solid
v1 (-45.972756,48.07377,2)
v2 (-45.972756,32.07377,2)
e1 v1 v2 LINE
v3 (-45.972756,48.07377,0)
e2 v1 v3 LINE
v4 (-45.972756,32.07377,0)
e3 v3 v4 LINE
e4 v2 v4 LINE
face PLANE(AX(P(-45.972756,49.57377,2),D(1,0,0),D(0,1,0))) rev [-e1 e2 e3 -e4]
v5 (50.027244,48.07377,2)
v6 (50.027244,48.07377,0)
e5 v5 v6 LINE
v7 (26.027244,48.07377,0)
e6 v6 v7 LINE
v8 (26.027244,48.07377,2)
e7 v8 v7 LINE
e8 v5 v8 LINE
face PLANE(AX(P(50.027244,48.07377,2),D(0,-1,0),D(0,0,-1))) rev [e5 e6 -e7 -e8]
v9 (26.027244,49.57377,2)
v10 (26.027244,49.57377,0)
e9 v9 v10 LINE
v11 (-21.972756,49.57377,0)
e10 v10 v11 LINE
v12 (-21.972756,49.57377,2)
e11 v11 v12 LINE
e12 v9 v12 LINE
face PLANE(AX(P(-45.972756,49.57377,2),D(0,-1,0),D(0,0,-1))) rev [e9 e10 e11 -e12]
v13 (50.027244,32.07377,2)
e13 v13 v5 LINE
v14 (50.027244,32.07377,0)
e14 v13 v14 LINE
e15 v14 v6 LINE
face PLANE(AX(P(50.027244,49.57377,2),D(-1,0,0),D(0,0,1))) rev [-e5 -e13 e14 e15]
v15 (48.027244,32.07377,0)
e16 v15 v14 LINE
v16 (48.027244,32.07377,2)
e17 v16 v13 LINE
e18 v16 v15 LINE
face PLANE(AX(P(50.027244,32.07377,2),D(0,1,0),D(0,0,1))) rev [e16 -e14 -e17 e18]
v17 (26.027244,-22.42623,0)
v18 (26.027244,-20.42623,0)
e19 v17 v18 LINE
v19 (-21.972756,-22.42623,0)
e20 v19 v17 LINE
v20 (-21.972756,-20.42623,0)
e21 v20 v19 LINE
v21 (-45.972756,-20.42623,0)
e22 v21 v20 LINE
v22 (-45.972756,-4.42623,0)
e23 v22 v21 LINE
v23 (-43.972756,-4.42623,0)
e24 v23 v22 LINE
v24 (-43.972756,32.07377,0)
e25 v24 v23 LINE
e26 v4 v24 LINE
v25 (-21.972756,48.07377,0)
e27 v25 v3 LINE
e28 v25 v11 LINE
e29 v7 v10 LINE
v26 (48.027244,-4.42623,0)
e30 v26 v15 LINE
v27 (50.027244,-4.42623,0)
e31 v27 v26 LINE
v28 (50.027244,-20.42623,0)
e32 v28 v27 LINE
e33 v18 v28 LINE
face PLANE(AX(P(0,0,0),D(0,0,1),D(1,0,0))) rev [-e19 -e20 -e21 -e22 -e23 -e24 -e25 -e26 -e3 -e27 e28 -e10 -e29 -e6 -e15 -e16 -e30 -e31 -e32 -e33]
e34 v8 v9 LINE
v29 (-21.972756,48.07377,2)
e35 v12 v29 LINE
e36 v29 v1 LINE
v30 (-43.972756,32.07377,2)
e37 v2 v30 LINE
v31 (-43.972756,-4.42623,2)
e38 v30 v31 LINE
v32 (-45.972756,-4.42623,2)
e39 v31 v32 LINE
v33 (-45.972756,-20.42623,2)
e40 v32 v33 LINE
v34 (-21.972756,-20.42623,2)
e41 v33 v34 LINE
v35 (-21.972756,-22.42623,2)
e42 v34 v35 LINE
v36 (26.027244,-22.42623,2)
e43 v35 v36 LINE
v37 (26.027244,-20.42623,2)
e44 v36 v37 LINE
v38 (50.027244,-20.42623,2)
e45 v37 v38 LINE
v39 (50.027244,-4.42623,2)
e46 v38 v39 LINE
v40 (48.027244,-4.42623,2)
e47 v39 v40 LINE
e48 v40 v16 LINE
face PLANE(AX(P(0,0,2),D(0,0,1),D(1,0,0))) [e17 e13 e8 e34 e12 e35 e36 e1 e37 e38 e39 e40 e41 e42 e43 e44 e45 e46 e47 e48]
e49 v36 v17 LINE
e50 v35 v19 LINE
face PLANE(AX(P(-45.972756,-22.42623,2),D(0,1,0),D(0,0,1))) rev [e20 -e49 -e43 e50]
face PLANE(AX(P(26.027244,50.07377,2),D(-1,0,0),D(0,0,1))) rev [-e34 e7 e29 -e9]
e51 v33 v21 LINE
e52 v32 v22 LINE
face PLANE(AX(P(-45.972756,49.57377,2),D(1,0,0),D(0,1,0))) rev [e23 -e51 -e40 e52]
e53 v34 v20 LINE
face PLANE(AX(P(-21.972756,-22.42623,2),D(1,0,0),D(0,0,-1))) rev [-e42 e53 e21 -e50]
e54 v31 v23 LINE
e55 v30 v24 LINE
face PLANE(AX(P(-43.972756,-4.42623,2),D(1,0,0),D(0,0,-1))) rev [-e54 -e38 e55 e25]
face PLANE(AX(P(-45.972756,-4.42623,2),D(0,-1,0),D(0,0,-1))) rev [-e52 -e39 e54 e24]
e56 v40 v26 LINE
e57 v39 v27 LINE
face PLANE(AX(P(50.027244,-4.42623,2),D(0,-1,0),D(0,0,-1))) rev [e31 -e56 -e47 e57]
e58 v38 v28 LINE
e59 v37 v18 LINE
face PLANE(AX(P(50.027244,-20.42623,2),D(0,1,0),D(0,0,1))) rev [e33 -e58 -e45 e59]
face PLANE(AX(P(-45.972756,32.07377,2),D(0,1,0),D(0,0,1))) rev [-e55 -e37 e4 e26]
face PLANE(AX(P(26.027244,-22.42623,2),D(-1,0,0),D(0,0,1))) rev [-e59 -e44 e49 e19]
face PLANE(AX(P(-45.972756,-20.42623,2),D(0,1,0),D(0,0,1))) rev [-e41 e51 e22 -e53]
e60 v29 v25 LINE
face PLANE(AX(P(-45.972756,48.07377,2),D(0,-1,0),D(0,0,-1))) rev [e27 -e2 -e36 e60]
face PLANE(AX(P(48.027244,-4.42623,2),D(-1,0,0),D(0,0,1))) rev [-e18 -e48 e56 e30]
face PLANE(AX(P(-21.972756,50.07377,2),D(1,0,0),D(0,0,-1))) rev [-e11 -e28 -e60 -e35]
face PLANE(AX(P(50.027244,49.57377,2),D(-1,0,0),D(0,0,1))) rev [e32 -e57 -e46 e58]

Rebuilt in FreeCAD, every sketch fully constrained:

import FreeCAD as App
import Part
import Sketcher
from FreeCAD import Vector
Q = App.Units.Quantity

doc = App.newDocument("Part")
body = doc.addObject("PartDesign::Body", "Body")

sketch1 = doc.addObject("Sketcher::SketchObject", "Sketch")
body.addObject(sketch1)
sketch1.AttachmentSupport = (doc.XY_Plane, [""])
sketch1.MapMode = "FlatFace"
sketch1.addGeometry(Part.LineSegment(Vector(-46, 50, 0), Vector(-46, -22, 0)), False)
sketch1.addGeometry(Part.LineSegment(Vector(-46, -22, 0), Vector(50, -22, 0)), False)
sketch1.addGeometry(Part.LineSegment(Vector(50, -22, 0), Vector(50, 50, 0)), False)
sketch1.addGeometry(Part.LineSegment(Vector(50, 50, 0), Vector(-46, 50, 0)), False)
sketch1.addConstraint(Sketcher.Constraint("Coincident", 0, 2, 1, 1))
sketch1.addConstraint(Sketcher.Constraint("Coincident", 1, 2, 2, 1))
sketch1.addConstraint(Sketcher.Constraint("Coincident", 2, 2, 3, 1))
sketch1.addConstraint(Sketcher.Constraint("Coincident", 3, 2, 0, 1))
sketch1.addConstraint(Sketcher.Constraint("Vertical", 0))
sketch1.addConstraint(Sketcher.Constraint("Horizontal", 1))
sketch1.addConstraint(Sketcher.Constraint("Vertical", 2))
sketch1.addConstraint(Sketcher.Constraint("Horizontal", 3))
sketch1.addConstraint(Sketcher.Constraint("DistanceX", 1, 1, 1, 2, Q("96 mm")))
sketch1.addConstraint(Sketcher.Constraint("DistanceY", 0, 2, 0, 1, Q("72 mm")))
sketch1.addConstraint(Sketcher.Constraint("DistanceY", 0, 2, -1, 1, Q("22.42623 mm")))
sketch1.addConstraint(Sketcher.Constraint("DistanceX", 0, 2, -1, 1, Q("45.972756 mm")))
pad1 = doc.addObject("PartDesign::Pad", "Pad")
body.addObject(pad1)
pad1.Profile = sketch1
pad1.Length = 2

sketch2 = doc.addObject("Sketcher::SketchObject", "Sketch001")
body.addObject(sketch2)
sketch2.AttachmentSupport = (doc.XY_Plane, [""])
sketch2.MapMode = "FlatFace"
sketch2.addGeometry(Part.LineSegment(Vector(-22, -20.4, 0), Vector(-22, -22.4, 0)), False)
sketch2.addGeometry(Part.LineSegment(Vector(-22, -22.4, 0), Vector(-46, -22.4, 0)), False)
sketch2.addGeometry(Part.LineSegment(Vector(-46, -22.4, 0), Vector(-46, -20.4, 0)), False)
sketch2.addGeometry(Part.LineSegment(Vector(-46, -20.4, 0), Vector(-22, -20.4, 0)), False)
sketch2.addGeometry(Part.LineSegment(Vector(50, -20.4, 0), Vector(50, -22.4, 0)), False)
sketch2.addGeometry(Part.LineSegment(Vector(50, -22.4, 0), Vector(26, -22.4, 0)), False)
sketch2.addGeometry(Part.LineSegment(Vector(26, -22.4, 0), Vector(26, -20.4, 0)), False)
sketch2.addGeometry(Part.LineSegment(Vector(26, -20.4, 0), Vector(50, -20.4, 0)), False)
sketch2.addGeometry(Part.LineSegment(Vector(-22, 50.1, 0), Vector(-22, 48.1, 0)), False)
sketch2.addGeometry(Part.LineSegment(Vector(-22, 48.1, 0), Vector(-46, 48.1, 0)), False)
sketch2.addGeometry(Part.LineSegment(Vector(-46, 48.1, 0), Vector(-46, 50.1, 0)), False)
sketch2.addGeometry(Part.LineSegment(Vector(-46, 50.1, 0), Vector(-22, 50.1, 0)), False)
sketch2.addGeometry(Part.LineSegment(Vector(50, 50.1, 0), Vector(50, 48.1, 0)), False)
sketch2.addGeometry(Part.LineSegment(Vector(50, 48.1, 0), Vector(26, 48.1, 0)), False)
sketch2.addGeometry(Part.LineSegment(Vector(26, 48.1, 0), Vector(26, 50.1, 0)), False)
sketch2.addGeometry(Part.LineSegment(Vector(26, 50.1, 0), Vector(50, 50.1, 0)), False)
sketch2.addConstraint(Sketcher.Constraint("Coincident", 0, 2, 1, 1))
sketch2.addConstraint(Sketcher.Constraint("Coincident", 1, 2, 2, 1))
sketch2.addConstraint(Sketcher.Constraint("Coincident", 2, 2, 3, 1))
sketch2.addConstraint(Sketcher.Constraint("Coincident", 3, 2, 0, 1))
sketch2.addConstraint(Sketcher.Constraint("Coincident", 4, 2, 5, 1))
sketch2.addConstraint(Sketcher.Constraint("Coincident", 5, 2, 6, 1))
sketch2.addConstraint(Sketcher.Constraint("Coincident", 6, 2, 7, 1))
sketch2.addConstraint(Sketcher.Constraint("Coincident", 7, 2, 4, 1))
sketch2.addConstraint(Sketcher.Constraint("Coincident", 8, 2, 9, 1))
sketch2.addConstraint(Sketcher.Constraint("Coincident", 9, 2, 10, 1))
sketch2.addConstraint(Sketcher.Constraint("Coincident", 10, 2, 11, 1))
sketch2.addConstraint(Sketcher.Constraint("Coincident", 11, 2, 8, 1))
sketch2.addConstraint(Sketcher.Constraint("Coincident", 12, 2, 13, 1))
sketch2.addConstraint(Sketcher.Constraint("Coincident", 13, 2, 14, 1))
sketch2.addConstraint(Sketcher.Constraint("Coincident", 14, 2, 15, 1))
sketch2.addConstraint(Sketcher.Constraint("Coincident", 15, 2, 12, 1))
sketch2.addConstraint(Sketcher.Constraint("Vertical", 0))
sketch2.addConstraint(Sketcher.Constraint("Horizontal", 1))
sketch2.addConstraint(Sketcher.Constraint("Vertical", 2))
sketch2.addConstraint(Sketcher.Constraint("Horizontal", 3))
sketch2.addConstraint(Sketcher.Constraint("Vertical", 4))
sketch2.addConstraint(Sketcher.Constraint("Horizontal", 5))
sketch2.addConstraint(Sketcher.Constraint("Vertical", 6))
sketch2.addConstraint(Sketcher.Constraint("Horizontal", 7))
sketch2.addConstraint(Sketcher.Constraint("Vertical", 8))
sketch2.addConstraint(Sketcher.Constraint("Horizontal", 9))
sketch2.addConstraint(Sketcher.Constraint("Vertical", 10))
sketch2.addConstraint(Sketcher.Constraint("Horizontal", 11))
sketch2.addConstraint(Sketcher.Constraint("Vertical", 12))
sketch2.addConstraint(Sketcher.Constraint("Horizontal", 13))
sketch2.addConstraint(Sketcher.Constraint("Vertical", 14))
sketch2.addConstraint(Sketcher.Constraint("Horizontal", 15))
sketch2.addConstraint(Sketcher.Constraint("Horizontal", 1, 2, 4, 2))
sketch2.addConstraint(Sketcher.Constraint("Horizontal", 3, 2, 6, 2))
sketch2.addConstraint(Sketcher.Constraint("Horizontal", 9, 2, 12, 2))
sketch2.addConstraint(Sketcher.Constraint("Horizontal", 11, 2, 14, 2))
sketch2.addConstraint(Sketcher.Constraint("Vertical", 3, 2, 8, 2))
sketch2.addConstraint(Sketcher.Constraint("Vertical", 2, 2, 9, 2))
sketch2.addConstraint(Sketcher.Constraint("Vertical", 7, 2, 12, 2))
sketch2.addConstraint(Sketcher.Constraint("Vertical", 6, 2, 13, 2))
sketch2.addConstraint(Sketcher.Constraint("Equal", 3, 5))
sketch2.addConstraint(Sketcher.Constraint("Equal", 6, 8))
sketch2.addConstraint(Sketcher.Constraint("DistanceX", 1, 2, 1, 1, Q("24 mm")))
sketch2.addConstraint(Sketcher.Constraint("DistanceY", 0, 2, 0, 1, Q("2 mm")))
sketch2.addConstraint(Sketcher.Constraint("DistanceX", 0, 2, 4, 2, Q("72 mm")))
sketch2.addConstraint(Sketcher.Constraint("DistanceY", 3, 2, 8, 2, Q("68.5 mm")))
sketch2.addConstraint(Sketcher.Constraint("DistanceY", 0, 2, -1, 1, Q("22.42623 mm")))
sketch2.addConstraint(Sketcher.Constraint("DistanceX", 0, 2, -1, 1, Q("21.972756 mm")))
pocket1 = doc.addObject("PartDesign::Pocket", "Pocket")
body.addObject(pocket1)
pocket1.Profile = sketch2
pocket1.Type = "ThroughAll"
pocket1.Reversed = True

sketch3 = doc.addObject("Sketcher::SketchObject", "Sketch002")
body.addObject(sketch3)
sketch3.AttachmentSupport = (doc.XY_Plane, [""])
sketch3.MapMode = "FlatFace"
sketch3.addGeometry(Part.LineSegment(Vector(-44, 32.1, 0), Vector(-44, -4.4, 0)), False)
sketch3.addGeometry(Part.LineSegment(Vector(-44, -4.4, 0), Vector(-46, -4.4, 0)), False)
sketch3.addGeometry(Part.LineSegment(Vector(-46, -4.4, 0), Vector(-46, 32.1, 0)), False)
sketch3.addGeometry(Part.LineSegment(Vector(-46, 32.1, 0), Vector(-44, 32.1, 0)), False)
sketch3.addConstraint(Sketcher.Constraint("Coincident", 0, 2, 1, 1))
sketch3.addConstraint(Sketcher.Constraint("Coincident", 1, 2, 2, 1))
sketch3.addConstraint(Sketcher.Constraint("Coincident", 2, 2, 3, 1))
sketch3.addConstraint(Sketcher.Constraint("Coincident", 3, 2, 0, 1))
sketch3.addConstraint(Sketcher.Constraint("Vertical", 0))
sketch3.addConstraint(Sketcher.Constraint("Horizontal", 1))
sketch3.addConstraint(Sketcher.Constraint("Vertical", 2))
sketch3.addConstraint(Sketcher.Constraint("Horizontal", 3))
sketch3.addConstraint(Sketcher.Constraint("DistanceX", 1, 2, 1, 1, Q("2 mm")))
sketch3.addConstraint(Sketcher.Constraint("DistanceY", 0, 2, 0, 1, Q("36.5 mm")))
sketch3.addConstraint(Sketcher.Constraint("DistanceY", 0, 2, -1, 1, Q("4.42623 mm")))
sketch3.addConstraint(Sketcher.Constraint("DistanceX", 0, 2, -1, 1, Q("43.972756 mm")))
pocket2 = doc.addObject("PartDesign::Pocket", "Pocket001")
body.addObject(pocket2)
pocket2.Profile = sketch3
pocket2.Type = "ThroughAll"
pocket2.Reversed = True

sketch4 = doc.addObject("Sketcher::SketchObject", "Sketch003")
body.addObject(sketch4)
sketch4.AttachmentSupport = (doc.XY_Plane, [""])
sketch4.MapMode = "FlatFace"
sketch4.addGeometry(Part.LineSegment(Vector(50, 32.1, 0), Vector(50, -4.4, 0)), False)
sketch4.addGeometry(Part.LineSegment(Vector(50, -4.4, 0), Vector(48, -4.4, 0)), False)
sketch4.addGeometry(Part.LineSegment(Vector(48, -4.4, 0), Vector(48, 32.1, 0)), False)
sketch4.addGeometry(Part.LineSegment(Vector(48, 32.1, 0), Vector(50, 32.1, 0)), False)
sketch4.addConstraint(Sketcher.Constraint("Coincident", 0, 2, 1, 1))
sketch4.addConstraint(Sketcher.Constraint("Coincident", 1, 2, 2, 1))
sketch4.addConstraint(Sketcher.Constraint("Coincident", 2, 2, 3, 1))
sketch4.addConstraint(Sketcher.Constraint("Coincident", 3, 2, 0, 1))
sketch4.addConstraint(Sketcher.Constraint("Vertical", 0))
sketch4.addConstraint(Sketcher.Constraint("Horizontal", 1))
sketch4.addConstraint(Sketcher.Constraint("Vertical", 2))
sketch4.addConstraint(Sketcher.Constraint("Horizontal", 3))
sketch4.addConstraint(Sketcher.Constraint("DistanceX", 1, 2, 1, 1, Q("2 mm")))
sketch4.addConstraint(Sketcher.Constraint("DistanceY", 0, 2, 0, 1, Q("36.5 mm")))
sketch4.addConstraint(Sketcher.Constraint("DistanceY", 0, 2, -1, 1, Q("4.42623 mm")))
sketch4.addConstraint(Sketcher.Constraint("DistanceX", -1, 1, 0, 2, Q("50.027244 mm")))
pocket3 = doc.addObject("PartDesign::Pocket", "Pocket002")
body.addObject(pocket3)
pocket3.Profile = sketch4
pocket3.Type = "ThroughAll"
pocket3.Reversed = True

doc.recompute()
